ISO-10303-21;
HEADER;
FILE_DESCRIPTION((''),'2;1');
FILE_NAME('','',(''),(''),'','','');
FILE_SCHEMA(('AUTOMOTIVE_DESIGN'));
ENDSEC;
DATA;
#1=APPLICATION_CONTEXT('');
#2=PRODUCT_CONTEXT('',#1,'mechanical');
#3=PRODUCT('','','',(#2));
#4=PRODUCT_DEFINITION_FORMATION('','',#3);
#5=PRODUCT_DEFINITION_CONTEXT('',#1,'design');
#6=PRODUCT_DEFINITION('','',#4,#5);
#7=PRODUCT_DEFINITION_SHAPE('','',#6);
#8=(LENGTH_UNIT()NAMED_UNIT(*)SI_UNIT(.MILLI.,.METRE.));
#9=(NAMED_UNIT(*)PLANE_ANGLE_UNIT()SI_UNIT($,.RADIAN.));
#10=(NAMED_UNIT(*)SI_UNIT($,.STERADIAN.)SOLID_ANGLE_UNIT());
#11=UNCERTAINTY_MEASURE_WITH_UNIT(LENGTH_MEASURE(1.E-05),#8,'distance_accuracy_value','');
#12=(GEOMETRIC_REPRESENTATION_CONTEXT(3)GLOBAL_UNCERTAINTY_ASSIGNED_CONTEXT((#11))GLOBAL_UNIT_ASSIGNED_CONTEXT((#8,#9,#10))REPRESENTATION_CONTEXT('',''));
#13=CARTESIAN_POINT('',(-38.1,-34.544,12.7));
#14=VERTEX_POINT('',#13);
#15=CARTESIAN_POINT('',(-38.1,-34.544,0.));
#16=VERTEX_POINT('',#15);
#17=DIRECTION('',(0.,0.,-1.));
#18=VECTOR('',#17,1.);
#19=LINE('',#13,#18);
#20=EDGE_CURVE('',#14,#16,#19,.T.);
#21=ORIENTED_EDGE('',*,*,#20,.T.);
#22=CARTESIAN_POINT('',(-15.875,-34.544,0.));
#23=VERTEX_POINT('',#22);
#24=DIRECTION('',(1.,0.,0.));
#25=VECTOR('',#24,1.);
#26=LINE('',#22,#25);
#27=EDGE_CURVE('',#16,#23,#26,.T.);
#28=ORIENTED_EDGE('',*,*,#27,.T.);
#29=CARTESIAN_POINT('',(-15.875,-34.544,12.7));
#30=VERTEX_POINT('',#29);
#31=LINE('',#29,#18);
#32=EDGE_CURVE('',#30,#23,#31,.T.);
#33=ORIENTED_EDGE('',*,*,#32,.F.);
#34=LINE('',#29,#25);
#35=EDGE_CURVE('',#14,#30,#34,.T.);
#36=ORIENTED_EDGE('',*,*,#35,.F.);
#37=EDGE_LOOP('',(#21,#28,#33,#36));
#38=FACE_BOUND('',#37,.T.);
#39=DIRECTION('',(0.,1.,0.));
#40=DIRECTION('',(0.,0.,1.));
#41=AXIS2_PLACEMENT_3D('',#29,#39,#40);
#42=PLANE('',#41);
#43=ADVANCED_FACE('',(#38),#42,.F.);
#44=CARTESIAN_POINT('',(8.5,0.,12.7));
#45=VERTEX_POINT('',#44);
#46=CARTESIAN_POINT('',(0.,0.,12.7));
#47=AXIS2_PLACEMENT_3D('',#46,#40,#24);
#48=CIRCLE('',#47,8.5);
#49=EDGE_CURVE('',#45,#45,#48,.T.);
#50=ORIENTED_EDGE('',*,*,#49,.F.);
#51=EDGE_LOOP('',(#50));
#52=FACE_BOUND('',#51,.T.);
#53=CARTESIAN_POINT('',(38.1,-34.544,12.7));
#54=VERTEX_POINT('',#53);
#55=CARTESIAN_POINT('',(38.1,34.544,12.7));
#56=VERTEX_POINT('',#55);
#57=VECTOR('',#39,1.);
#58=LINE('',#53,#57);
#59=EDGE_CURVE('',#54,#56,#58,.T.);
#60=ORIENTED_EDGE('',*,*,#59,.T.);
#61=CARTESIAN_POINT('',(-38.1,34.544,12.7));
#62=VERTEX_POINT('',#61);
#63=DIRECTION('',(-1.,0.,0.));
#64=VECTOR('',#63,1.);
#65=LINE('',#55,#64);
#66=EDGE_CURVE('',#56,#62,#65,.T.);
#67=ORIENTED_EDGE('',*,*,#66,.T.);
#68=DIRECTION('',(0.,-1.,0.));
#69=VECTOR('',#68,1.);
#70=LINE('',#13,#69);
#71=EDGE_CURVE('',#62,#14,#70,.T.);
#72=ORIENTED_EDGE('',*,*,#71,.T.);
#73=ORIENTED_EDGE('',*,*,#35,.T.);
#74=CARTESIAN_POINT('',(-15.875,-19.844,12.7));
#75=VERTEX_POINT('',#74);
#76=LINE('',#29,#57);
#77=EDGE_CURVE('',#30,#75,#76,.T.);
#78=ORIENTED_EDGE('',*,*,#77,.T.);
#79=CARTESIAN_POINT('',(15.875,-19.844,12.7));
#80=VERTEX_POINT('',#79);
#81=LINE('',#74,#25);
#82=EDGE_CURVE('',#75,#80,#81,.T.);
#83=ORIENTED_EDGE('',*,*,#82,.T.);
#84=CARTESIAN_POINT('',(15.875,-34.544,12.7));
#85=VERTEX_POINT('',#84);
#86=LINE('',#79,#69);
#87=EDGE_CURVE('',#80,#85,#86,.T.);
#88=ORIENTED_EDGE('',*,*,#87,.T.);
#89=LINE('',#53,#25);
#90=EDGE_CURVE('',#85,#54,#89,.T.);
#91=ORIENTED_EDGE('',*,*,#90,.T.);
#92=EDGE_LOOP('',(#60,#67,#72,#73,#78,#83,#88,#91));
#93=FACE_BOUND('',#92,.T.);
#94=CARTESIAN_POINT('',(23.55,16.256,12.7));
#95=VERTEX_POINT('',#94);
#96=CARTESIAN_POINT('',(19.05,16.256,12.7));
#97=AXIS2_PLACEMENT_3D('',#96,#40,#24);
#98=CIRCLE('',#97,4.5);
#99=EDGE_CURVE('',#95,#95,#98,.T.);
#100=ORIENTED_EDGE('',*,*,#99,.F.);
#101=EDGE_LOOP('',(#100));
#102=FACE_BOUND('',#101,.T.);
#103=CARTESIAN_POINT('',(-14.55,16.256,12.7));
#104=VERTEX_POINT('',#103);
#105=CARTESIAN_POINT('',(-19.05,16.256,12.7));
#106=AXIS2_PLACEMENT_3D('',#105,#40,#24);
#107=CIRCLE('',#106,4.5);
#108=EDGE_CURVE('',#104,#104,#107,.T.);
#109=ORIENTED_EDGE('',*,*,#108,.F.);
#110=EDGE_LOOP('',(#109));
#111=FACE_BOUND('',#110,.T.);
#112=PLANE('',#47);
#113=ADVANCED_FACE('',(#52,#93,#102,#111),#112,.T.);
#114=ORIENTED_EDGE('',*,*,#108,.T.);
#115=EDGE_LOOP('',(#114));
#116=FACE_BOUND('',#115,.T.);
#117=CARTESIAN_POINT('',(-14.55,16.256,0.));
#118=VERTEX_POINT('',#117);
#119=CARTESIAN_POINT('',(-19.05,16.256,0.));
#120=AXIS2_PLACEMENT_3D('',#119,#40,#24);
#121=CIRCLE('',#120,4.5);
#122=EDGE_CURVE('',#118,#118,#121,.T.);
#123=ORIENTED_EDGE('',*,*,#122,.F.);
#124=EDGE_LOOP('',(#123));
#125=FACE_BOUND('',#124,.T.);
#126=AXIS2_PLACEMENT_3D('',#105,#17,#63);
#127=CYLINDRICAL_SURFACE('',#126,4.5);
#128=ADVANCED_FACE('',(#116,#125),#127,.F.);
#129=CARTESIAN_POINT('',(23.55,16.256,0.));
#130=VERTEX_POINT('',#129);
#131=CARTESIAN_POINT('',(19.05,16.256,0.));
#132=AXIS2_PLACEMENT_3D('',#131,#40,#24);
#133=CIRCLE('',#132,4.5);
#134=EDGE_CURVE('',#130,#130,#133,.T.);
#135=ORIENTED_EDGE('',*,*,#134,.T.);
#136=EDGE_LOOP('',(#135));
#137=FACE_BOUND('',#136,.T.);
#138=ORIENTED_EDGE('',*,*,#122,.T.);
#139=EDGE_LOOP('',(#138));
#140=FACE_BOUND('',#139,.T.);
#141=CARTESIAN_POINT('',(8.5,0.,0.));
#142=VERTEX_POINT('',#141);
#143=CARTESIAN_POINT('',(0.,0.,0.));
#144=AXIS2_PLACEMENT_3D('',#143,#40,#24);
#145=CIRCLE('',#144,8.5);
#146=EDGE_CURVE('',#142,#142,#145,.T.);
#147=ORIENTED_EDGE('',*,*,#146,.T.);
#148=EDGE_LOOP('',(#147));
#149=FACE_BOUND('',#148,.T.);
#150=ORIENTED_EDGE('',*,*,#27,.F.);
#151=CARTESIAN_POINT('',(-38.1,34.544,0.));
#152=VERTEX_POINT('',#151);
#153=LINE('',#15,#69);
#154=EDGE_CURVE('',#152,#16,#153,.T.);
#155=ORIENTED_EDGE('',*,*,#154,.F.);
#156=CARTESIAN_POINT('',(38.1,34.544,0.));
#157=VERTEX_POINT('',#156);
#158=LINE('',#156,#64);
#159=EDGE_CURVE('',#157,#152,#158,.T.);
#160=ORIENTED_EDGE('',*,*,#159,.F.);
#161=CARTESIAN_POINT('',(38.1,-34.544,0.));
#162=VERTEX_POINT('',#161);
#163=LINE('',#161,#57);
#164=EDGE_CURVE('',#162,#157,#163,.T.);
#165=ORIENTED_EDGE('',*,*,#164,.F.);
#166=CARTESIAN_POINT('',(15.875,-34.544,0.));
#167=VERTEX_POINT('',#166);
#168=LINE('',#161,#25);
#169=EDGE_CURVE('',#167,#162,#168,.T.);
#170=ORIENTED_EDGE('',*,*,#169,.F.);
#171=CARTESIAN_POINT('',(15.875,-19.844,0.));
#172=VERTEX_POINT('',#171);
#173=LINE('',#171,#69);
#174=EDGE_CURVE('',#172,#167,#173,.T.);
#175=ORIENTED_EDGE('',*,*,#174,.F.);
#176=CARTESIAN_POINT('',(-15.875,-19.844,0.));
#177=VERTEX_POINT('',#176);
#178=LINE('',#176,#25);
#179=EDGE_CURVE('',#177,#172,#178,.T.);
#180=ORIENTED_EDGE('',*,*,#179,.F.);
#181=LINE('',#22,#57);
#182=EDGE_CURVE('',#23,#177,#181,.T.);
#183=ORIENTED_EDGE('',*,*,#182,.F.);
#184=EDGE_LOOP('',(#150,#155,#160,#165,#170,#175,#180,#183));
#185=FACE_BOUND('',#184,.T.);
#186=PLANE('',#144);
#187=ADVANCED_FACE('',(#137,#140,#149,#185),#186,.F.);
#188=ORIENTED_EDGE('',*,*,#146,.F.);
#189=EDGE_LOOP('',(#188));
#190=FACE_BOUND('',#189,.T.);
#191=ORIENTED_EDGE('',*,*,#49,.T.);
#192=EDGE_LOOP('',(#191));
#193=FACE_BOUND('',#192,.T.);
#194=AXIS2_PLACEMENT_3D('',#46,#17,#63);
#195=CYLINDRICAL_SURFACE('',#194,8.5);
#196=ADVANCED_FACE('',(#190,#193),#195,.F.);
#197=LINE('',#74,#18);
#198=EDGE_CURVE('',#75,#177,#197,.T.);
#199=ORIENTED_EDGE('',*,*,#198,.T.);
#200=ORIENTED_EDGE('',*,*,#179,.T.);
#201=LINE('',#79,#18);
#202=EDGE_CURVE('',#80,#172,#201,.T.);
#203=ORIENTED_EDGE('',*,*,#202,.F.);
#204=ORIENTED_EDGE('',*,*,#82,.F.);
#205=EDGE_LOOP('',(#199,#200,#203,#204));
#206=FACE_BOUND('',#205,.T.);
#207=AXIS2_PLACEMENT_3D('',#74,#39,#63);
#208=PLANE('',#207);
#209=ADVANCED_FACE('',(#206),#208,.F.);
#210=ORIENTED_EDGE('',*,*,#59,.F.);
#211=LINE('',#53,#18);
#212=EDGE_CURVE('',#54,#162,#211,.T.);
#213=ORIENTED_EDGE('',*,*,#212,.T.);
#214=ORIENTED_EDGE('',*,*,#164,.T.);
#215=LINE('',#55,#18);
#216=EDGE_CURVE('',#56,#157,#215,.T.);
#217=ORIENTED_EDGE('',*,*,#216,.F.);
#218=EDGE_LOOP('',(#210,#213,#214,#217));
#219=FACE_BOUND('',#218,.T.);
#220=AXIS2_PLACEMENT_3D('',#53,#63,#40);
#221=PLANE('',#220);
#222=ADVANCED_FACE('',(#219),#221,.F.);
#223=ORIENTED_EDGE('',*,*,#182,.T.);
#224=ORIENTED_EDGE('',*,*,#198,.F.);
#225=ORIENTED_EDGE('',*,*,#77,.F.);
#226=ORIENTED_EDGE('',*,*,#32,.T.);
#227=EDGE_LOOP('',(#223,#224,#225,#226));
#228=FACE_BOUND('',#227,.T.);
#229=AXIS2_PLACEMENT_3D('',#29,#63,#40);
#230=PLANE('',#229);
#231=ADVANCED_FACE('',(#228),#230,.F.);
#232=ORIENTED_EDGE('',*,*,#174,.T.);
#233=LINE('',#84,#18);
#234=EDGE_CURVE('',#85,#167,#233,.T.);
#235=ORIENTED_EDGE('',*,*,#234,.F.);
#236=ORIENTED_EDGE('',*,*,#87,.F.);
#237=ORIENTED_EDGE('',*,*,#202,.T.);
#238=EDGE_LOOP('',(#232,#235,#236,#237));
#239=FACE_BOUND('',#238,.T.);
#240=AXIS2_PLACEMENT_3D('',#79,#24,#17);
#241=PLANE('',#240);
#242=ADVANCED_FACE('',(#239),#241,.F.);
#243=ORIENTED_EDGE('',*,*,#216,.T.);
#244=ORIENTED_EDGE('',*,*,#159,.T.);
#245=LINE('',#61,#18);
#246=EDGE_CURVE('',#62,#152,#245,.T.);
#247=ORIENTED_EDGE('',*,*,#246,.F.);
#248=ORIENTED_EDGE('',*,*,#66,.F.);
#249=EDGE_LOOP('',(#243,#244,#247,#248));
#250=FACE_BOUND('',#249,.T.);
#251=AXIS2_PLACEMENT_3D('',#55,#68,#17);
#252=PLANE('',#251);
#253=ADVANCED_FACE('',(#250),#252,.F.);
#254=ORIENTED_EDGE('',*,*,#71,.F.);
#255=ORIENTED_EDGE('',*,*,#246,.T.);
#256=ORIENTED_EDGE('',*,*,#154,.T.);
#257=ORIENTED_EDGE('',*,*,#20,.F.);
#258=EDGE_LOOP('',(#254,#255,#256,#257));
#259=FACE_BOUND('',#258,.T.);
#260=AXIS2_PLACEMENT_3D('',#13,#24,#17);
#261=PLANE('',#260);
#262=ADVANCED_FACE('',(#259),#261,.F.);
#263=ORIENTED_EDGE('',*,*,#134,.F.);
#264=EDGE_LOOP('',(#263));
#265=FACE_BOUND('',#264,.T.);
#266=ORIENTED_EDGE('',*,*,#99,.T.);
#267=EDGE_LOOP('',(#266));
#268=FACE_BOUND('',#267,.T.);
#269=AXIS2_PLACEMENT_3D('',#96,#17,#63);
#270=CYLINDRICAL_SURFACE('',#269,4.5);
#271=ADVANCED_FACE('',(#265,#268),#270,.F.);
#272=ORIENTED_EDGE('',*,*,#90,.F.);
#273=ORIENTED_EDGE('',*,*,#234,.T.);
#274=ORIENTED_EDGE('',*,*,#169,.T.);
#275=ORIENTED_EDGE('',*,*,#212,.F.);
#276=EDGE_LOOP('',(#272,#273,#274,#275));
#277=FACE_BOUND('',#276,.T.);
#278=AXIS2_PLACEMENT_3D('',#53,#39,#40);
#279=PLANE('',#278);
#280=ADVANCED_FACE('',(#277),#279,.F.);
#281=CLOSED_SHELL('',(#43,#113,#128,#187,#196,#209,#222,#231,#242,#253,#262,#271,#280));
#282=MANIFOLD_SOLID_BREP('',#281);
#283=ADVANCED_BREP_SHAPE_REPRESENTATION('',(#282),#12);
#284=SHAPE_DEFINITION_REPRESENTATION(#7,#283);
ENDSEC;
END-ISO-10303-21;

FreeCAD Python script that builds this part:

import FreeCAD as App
import Part
import Sketcher

V = App.Vector
Q = App.Units.Quantity


def add_polygon(sketch, points):
    """Adds a closed chain of lines whose ends are joined by coincident constraints."""
    first, n = sketch.GeometryCount, len(points)
    for a, b in zip(points, points[1:] + points[:1]):
        sketch.addGeometry(Part.LineSegment(App.Vector(*a, 0), App.Vector(*b, 0)), False)
    for i in range(n):
        sketch.addConstraint(Sketcher.Constraint("Coincident", first + i, 2, first + (i + 1) % n, 1))

doc = App.newDocument("Part")
body = doc.addObject("PartDesign::Body", "Body")

sketch1 = body.newObject("Sketcher::SketchObject", "Sketch")
sketch1.AttachmentSupport = (doc.getObject("XY_Plane"), [""])
sketch1.MapMode = "FlatFace"
add_polygon(sketch1, [(-15.875, -34.544), (-15.875, -19.844), (15.875, -19.844), (15.875, -34.544), (38.1, -34.544), (38.1, 34.544), (-38.1, 34.544), (-38.1, -34.544)])
sketch1.addGeometry(Part.Circle(V(0, 0, 0), V(0, 0, 1), 8.5), False)
sketch1.addGeometry(Part.Circle(V(-19.05, 16.256, 0), V(0, 0, 1), 4.5), False)
sketch1.addGeometry(Part.Circle(V(19.05, 16.256, 0), V(0, 0, 1), 4.5), False)
sketch1.addConstraint([
    Sketcher.Constraint("Vertical", 0),
    Sketcher.Constraint("Horizontal", 1),
    Sketcher.Constraint("Vertical", 2),
    Sketcher.Constraint("Horizontal", 3),
    Sketcher.Constraint("Vertical", 4),
    Sketcher.Constraint("Horizontal", 5),
    Sketcher.Constraint("Vertical", 6),
    Sketcher.Constraint("Horizontal", 7),
    Sketcher.Constraint("Coincident", 8, 3, -1, 1),
    Sketcher.Constraint("Equal", 9, 10),
    Sketcher.Constraint("Symmetric", 3, 2, 5, 2, -1, 1),
    Sketcher.Constraint("Symmetric", 9, 3, 10, 3, -2),
    Sketcher.Constraint("Symmetric", 2, 2, 7, 2, -2),
    Sketcher.Constraint("DistanceX", 5, 2, 5, 1, Q("3 in")),
    Sketcher.Constraint("DistanceY", 2, 2, 10, 3, Q("2 in")),
    Sketcher.Constraint("DistanceX", 1, 1, 1, 2, Q("1.25 in")),
    Sketcher.Constraint("DistanceY", 4, 1, 4, 2, Q("2.72 in")),
    Sketcher.Constraint("DistanceX", 9, 3, 10, 3, Q("1.5 in")),
    Sketcher.Constraint("Diameter", 8, Q("17 mm")),
    Sketcher.Constraint("Diameter", 9, Q("9 mm")),
    Sketcher.Constraint("DistanceY", 0, 1, 0, 2, Q("14.7 mm")),
])
pad1 = body.newObject("PartDesign::Pad", "Pad")
pad1.Profile = sketch1
pad1.Length = Q("0.5 in")

doc.recompute()
